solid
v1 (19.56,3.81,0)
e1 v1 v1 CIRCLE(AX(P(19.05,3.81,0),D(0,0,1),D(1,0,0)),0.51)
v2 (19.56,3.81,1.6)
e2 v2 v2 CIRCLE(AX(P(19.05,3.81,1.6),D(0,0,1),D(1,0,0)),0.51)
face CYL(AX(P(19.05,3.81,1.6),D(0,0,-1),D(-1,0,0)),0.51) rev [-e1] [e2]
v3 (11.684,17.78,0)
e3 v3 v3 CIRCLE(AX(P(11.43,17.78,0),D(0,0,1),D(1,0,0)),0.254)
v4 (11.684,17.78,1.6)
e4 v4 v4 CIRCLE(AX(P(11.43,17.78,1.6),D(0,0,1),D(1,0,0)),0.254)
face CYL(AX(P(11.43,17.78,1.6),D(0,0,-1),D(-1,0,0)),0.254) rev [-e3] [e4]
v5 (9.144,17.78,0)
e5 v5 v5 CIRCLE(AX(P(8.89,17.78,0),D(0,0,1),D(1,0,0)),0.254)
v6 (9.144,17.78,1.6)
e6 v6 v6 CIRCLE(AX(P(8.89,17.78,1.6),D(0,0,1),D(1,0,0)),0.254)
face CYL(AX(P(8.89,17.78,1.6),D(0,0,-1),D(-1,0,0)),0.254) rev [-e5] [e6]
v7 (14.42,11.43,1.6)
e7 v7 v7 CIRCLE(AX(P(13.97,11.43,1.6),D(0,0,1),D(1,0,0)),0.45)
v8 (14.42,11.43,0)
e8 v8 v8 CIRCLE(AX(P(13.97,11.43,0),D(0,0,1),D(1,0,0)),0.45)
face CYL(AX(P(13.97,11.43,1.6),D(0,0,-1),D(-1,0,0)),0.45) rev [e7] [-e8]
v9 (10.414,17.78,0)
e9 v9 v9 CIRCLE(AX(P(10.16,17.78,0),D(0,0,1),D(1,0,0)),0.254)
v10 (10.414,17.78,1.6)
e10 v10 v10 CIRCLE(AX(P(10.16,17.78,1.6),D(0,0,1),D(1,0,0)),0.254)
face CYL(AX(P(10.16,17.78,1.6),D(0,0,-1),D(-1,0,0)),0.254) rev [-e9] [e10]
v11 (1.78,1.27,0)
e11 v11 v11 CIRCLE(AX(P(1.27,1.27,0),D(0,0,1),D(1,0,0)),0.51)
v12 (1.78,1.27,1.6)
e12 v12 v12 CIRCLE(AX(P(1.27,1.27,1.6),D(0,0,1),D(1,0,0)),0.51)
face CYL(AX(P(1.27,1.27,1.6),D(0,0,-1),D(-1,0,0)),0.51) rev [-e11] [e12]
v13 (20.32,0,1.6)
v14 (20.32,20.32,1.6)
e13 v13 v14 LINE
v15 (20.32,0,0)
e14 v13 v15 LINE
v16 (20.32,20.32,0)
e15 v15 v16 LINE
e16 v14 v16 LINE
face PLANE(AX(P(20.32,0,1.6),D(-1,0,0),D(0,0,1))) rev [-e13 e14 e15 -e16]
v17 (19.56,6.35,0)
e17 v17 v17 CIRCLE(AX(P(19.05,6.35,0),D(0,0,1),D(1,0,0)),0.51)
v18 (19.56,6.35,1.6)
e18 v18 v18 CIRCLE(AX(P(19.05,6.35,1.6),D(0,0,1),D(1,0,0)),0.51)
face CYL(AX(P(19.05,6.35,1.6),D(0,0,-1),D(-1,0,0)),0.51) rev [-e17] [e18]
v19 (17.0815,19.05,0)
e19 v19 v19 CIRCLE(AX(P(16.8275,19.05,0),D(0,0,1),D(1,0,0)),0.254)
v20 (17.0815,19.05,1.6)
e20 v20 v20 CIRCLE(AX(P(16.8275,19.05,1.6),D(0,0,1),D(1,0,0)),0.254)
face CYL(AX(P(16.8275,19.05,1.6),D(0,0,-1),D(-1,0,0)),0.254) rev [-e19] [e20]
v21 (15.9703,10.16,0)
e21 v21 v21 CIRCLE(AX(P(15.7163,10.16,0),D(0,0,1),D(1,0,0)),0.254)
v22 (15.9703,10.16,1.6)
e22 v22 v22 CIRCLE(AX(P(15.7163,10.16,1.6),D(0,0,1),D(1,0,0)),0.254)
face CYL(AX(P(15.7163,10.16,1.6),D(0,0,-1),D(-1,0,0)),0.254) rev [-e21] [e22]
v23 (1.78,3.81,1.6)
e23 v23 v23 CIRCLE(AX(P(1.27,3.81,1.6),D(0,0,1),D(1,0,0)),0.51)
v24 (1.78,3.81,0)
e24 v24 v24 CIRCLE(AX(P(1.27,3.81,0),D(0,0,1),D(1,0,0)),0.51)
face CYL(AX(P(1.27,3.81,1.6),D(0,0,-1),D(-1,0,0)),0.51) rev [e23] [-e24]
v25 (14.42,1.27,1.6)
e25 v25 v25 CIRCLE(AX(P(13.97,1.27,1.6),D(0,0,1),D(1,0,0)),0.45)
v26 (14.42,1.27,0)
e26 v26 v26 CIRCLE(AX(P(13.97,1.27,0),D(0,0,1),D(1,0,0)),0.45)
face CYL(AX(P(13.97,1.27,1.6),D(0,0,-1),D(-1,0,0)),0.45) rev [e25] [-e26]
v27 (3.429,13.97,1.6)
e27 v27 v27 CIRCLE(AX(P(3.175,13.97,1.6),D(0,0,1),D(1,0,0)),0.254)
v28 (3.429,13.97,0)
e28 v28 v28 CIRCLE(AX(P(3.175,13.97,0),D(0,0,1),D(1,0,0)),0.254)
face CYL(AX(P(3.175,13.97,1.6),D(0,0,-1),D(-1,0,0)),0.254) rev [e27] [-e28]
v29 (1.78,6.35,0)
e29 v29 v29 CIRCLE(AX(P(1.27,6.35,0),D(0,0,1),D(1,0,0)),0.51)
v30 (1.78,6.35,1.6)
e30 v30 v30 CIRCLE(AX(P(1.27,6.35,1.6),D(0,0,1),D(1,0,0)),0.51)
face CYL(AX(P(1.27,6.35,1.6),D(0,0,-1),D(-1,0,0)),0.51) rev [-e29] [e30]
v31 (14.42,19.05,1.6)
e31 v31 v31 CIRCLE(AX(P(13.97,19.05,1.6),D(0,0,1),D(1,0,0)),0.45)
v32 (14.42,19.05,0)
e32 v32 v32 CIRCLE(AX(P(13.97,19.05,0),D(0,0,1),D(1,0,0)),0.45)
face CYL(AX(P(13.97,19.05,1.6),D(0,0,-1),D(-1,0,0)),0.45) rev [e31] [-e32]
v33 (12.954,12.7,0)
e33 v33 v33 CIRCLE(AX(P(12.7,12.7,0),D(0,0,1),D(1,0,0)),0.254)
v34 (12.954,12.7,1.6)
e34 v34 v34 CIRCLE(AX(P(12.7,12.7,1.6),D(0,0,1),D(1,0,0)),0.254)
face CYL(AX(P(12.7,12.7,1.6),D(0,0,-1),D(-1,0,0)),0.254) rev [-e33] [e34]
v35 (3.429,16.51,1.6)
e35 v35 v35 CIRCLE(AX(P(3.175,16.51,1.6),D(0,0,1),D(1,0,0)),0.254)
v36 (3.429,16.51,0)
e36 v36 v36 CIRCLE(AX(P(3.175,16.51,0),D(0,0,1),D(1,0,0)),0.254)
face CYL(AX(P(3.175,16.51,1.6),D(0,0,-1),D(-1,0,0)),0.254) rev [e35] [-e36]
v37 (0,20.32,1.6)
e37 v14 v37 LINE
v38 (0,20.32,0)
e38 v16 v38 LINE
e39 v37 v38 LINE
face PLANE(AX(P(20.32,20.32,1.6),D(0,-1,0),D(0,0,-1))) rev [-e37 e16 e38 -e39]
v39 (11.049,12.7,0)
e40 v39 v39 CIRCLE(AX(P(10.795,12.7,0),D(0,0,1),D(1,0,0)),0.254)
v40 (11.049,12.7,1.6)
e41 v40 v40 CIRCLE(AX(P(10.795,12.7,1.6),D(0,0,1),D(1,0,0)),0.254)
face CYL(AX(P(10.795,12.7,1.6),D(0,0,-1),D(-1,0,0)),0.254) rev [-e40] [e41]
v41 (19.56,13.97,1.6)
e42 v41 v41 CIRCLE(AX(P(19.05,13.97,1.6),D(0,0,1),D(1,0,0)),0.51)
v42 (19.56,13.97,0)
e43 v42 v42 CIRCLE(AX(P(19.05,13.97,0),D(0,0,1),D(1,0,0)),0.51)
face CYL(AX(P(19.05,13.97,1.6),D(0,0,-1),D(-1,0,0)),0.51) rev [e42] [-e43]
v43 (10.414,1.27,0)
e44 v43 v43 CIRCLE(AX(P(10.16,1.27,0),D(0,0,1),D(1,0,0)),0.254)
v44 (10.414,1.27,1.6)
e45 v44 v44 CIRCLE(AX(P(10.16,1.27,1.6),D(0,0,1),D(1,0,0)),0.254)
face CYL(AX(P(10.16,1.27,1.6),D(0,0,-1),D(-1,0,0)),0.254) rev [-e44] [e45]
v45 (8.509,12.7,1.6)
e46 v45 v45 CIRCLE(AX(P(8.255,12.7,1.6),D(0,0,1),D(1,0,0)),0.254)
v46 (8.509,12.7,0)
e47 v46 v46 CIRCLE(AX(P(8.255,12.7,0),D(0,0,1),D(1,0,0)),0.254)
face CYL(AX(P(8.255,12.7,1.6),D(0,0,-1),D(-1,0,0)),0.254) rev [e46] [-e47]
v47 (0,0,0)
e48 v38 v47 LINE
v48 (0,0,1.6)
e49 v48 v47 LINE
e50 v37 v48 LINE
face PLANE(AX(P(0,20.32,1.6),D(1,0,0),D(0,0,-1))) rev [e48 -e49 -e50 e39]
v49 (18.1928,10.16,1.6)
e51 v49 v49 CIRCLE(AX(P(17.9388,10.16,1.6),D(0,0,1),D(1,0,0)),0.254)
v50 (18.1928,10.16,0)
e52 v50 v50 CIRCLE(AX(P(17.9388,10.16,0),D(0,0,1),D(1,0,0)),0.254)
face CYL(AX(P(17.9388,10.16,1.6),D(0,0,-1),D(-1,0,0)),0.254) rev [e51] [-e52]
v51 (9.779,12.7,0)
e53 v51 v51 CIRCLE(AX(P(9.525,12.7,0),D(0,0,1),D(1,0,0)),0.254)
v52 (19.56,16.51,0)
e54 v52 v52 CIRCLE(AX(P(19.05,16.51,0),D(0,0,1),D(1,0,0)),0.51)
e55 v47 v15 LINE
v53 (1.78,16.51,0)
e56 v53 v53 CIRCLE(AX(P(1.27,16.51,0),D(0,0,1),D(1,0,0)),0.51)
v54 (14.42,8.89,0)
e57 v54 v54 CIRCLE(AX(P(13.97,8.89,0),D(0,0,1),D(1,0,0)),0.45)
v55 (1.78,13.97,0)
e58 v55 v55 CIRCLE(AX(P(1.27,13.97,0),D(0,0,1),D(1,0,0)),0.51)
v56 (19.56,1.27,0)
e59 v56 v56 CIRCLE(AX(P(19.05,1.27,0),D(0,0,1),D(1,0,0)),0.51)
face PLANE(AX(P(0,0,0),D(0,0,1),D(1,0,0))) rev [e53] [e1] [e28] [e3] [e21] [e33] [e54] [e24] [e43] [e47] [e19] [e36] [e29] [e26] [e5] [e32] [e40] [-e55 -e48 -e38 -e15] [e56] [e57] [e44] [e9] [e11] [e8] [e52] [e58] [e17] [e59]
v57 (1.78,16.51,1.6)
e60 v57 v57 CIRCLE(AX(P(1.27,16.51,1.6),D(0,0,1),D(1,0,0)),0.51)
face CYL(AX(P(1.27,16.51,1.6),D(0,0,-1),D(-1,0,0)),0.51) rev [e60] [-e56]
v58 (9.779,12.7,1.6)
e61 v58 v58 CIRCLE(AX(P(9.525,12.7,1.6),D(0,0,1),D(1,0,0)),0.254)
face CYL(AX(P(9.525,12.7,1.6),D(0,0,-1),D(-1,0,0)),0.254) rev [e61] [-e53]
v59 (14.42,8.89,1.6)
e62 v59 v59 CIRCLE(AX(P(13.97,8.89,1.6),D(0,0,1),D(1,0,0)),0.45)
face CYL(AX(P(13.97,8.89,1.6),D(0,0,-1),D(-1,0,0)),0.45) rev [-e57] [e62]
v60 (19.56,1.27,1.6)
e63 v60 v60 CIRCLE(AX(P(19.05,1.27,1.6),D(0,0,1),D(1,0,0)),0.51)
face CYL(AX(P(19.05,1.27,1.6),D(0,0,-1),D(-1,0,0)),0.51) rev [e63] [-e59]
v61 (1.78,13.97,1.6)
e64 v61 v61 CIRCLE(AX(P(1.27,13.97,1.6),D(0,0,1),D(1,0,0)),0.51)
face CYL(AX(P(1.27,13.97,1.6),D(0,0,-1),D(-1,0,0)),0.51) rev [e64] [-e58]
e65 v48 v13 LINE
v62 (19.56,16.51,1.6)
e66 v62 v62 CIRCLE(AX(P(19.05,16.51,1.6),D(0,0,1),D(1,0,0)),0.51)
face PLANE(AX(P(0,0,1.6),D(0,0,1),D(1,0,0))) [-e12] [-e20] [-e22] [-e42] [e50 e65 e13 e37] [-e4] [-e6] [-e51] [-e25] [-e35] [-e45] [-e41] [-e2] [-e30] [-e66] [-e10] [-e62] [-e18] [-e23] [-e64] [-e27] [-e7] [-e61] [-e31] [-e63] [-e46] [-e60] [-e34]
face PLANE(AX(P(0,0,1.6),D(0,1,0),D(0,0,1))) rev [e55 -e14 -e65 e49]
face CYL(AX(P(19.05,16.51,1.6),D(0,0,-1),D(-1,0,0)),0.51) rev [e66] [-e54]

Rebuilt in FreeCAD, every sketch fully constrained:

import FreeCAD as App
import Part
import Sketcher

doc = App.newDocument("Part")
body = doc.addObject("PartDesign::Body", "Body")

# Sketch on XY plane
sketch1 = body.newObject("Sketcher::SketchObject", "Sketch")
sketch1.AttachmentSupport = (doc.getObject("XY_Plane"), [""])
sketch1.MapMode = "FlatFace"
sketch1.addGeometry(Part.LineSegment(App.Vector(0, 20.32, 0), App.Vector(0, 0, 0)), False)
sketch1.addGeometry(Part.LineSegment(App.Vector(0, 0, 0), App.Vector(20.32, 0, 0)), False)
sketch1.addGeometry(Part.LineSegment(App.Vector(20.32, 0, 0), App.Vector(20.32, 20.32, 0)), False)
sketch1.addGeometry(Part.LineSegment(App.Vector(20.32, 20.32, 0), App.Vector(0, 20.32, 0)), False)
sketch1.addConstraint(Sketcher.Constraint("Coincident", 0, 2, 1, 1))
sketch1.addConstraint(Sketcher.Constraint("Coincident", 1, 2, 2, 1))
sketch1.addConstraint(Sketcher.Constraint("Coincident", 2, 2, 3, 1))
sketch1.addConstraint(Sketcher.Constraint("Coincident", 3, 2, 0, 1))
sketch1.addConstraint(Sketcher.Constraint("Vertical", 0))
sketch1.addConstraint(Sketcher.Constraint("Horizontal", 1))
sketch1.addConstraint(Sketcher.Constraint("Vertical", 2))
sketch1.addConstraint(Sketcher.Constraint("Horizontal", 3))
sketch1.addConstraint(Sketcher.Constraint("Coincident", 0, 2, -1, 1))
sketch1.addConstraint(Sketcher.Constraint("Equal", 3, 0))
sketch1.addConstraint(Sketcher.Constraint("DistanceX", 1, 1, 1, 2, 20.32))
pad1 = body.newObject("PartDesign::Pad", "Pad")
pad1.Profile = sketch1
pad1.Length = 1.6

# Sketch on XY plane
sketch2 = body.newObject("Sketcher::SketchObject", "Sketch001")
sketch2.AttachmentSupport = (doc.getObject("XY_Plane"), [""])
sketch2.MapMode = "FlatFace"
sketch2.addGeometry(Part.Circle(App.Vector(9.525, 12.7, 0), App.Vector(0, 0, 1), 0.254), False)
sketch2.addGeometry(Part.Circle(App.Vector(11.43, 17.78, 0), App.Vector(0, 0, 1), 0.254), False)
sketch2.addGeometry(Part.Circle(App.Vector(10.16, 17.78, 0), App.Vector(0, 0, 1), 0.254), False)
sketch2.addGeometry(Part.Circle(App.Vector(10.795, 12.7, 0), App.Vector(0, 0, 1), 0.254), False)
sketch2.addGeometry(Part.Circle(App.Vector(3.175, 13.97, 0), App.Vector(0, 0, 1), 0.254), False)
sketch2.addGeometry(Part.Circle(App.Vector(8.89, 17.78, 0), App.Vector(0, 0, 1), 0.254), False)
sketch2.addGeometry(Part.Circle(App.Vector(15.7163, 10.16, 0), App.Vector(0, 0, 1), 0.254), False)
sketch2.addGeometry(Part.Circle(App.Vector(16.8275, 19.05, 0), App.Vector(0, 0, 1), 0.254), False)
sketch2.addGeometry(Part.Circle(App.Vector(8.255, 12.7, 0), App.Vector(0, 0, 1), 0.254), False)
sketch2.addGeometry(Part.Circle(App.Vector(17.9388, 10.16, 0), App.Vector(0, 0, 1), 0.254), False)
sketch2.addGeometry(Part.Circle(App.Vector(12.7, 12.7, 0), App.Vector(0, 0, 1), 0.254), False)
sketch2.addGeometry(Part.Circle(App.Vector(10.16, 1.27, 0), App.Vector(0, 0, 1), 0.254), False)
sketch2.addGeometry(Part.Circle(App.Vector(3.175, 16.51, 0), App.Vector(0, 0, 1), 0.254), False)
sketch2.addConstraint(Sketcher.Constraint("Equal", 0, 1))
sketch2.addConstraint(Sketcher.Constraint("Equal", 1, 2))
sketch2.addConstraint(Sketcher.Constraint("Equal", 2, 3))
sketch2.addConstraint(Sketcher.Constraint("Equal", 3, 4))
sketch2.addConstraint(Sketcher.Constraint("Equal", 4, 5))
sketch2.addConstraint(Sketcher.Constraint("Equal", 5, 6))
sketch2.addConstraint(Sketcher.Constraint("Equal", 6, 7))
sketch2.addConstraint(Sketcher.Constraint("Equal", 7, 8))
sketch2.addConstraint(Sketcher.Constraint("Equal", 8, 9))
sketch2.addConstraint(Sketcher.Constraint("Equal", 9, 10))
sketch2.addConstraint(Sketcher.Constraint("Equal", 10, 11))
sketch2.addConstraint(Sketcher.Constraint("Equal", 11, 12))
sketch2.addConstraint(Sketcher.Constraint("Horizontal", 1, 3, 2, 3))
sketch2.addConstraint(Sketcher.Constraint("Horizontal", 0, 3, 3, 3))
sketch2.addConstraint(Sketcher.Constraint("Horizontal", 2, 3, 5, 3))
sketch2.addConstraint(Sketcher.Constraint("Horizontal", 3, 3, 8, 3))
sketch2.addConstraint(Sketcher.Constraint("Horizontal", 6, 3, 9, 3))
sketch2.addConstraint(Sketcher.Constraint("Horizontal", 8, 3, 10, 3))
sketch2.addConstraint(Sketcher.Constraint("Vertical", 2, 3, 11, 3))
sketch2.addConstraint(Sketcher.Constraint("Vertical", 4, 3, 12, 3))
sketch2.addConstraint(Sketcher.Constraint("Diameter", 0, 0.508))
sketch2.addConstraint(Sketcher.Constraint("DistanceY", -1, 1, 0, 3, 12.7))
sketch2.addConstraint(Sketcher.Constraint("DistanceX", -1, 1, 10, 3, 12.7))
sketch2.addConstraint(Sketcher.Constraint("DistanceX", -1, 1, 1, 3, 11.43))
sketch2.addConstraint(Sketcher.Constraint("DistanceY", -1, 1, 1, 3, 17.78))
sketch2.addConstraint(Sketcher.Constraint("DistanceX", -1, 1, 2, 3, 10.16))
sketch2.addConstraint(Sketcher.Constraint("DistanceY", -1, 1, 4, 3, 13.97))
sketch2.addConstraint(Sketcher.Constraint("DistanceX", -1, 1, 5, 3, 8.89))
sketch2.addConstraint(Sketcher.Constraint("DistanceY", -1, 1, 6, 3, 10.16))
sketch2.addConstraint(Sketcher.Constraint("DistanceY", -1, 1, 7, 3, 19.05))
sketch2.addConstraint(Sketcher.Constraint("DistanceY", -1, 1, 11, 3, 1.27))
sketch2.addConstraint(Sketcher.Constraint("DistanceY", -1, 1, 12, 3, 16.51))
sketch2.addConstraint(Sketcher.Constraint("DistanceX", 0, 3, 3, 3, 1.27))
sketch2.addConstraint(Sketcher.Constraint("DistanceX", 4, 3, 0, 3, 6.35))
sketch2.addConstraint(Sketcher.Constraint("DistanceX", 8, 3, 0, 3, 1.27))
sketch2.addConstraint(Sketcher.Constraint("DistanceX", -1, 1, 0, 3, 9.525))
sketch2.addConstraint(Sketcher.Constraint("DistanceX", -1, 1, 6, 3, 15.7163))
sketch2.addConstraint(Sketcher.Constraint("DistanceX", -1, 1, 7, 3, 16.8275))
sketch2.addConstraint(Sketcher.Constraint("DistanceX", -1, 1, 9, 3, 17.9388))
pocket1 = body.newObject("PartDesign::Pocket", "Pocket")
pocket1.Profile = sketch2
pocket1.Type = "ThroughAll"
pocket1.Reversed = True

# Sketch on XY plane
sketch3 = body.newObject("Sketcher::SketchObject", "Sketch002")
sketch3.AttachmentSupport = (doc.getObject("XY_Plane"), [""])
sketch3.MapMode = "FlatFace"
sketch3.addGeometry(Part.Circle(App.Vector(1.27, 1.27, 0), App.Vector(0, 0, 1), 0.51), False)
sketch3.addGeometry(Part.Circle(App.Vector(1.27, 3.81, 0), App.Vector(0, 0, 1), 0.51), False)
sketch3.addGeometry(Part.Circle(App.Vector(1.27, 6.35, 0), App.Vector(0, 0, 1), 0.51), False)
sketch3.addGeometry(Part.Circle(App.Vector(19.05, 16.51, 0), App.Vector(0, 0, 1), 0.51), False)
sketch3.addGeometry(Part.Circle(App.Vector(19.05, 13.97, 0), App.Vector(0, 0, 1), 0.51), False)
sketch3.addGeometry(Part.Circle(App.Vector(1.27, 16.51, 0), App.Vector(0, 0, 1), 0.51), False)
sketch3.addGeometry(Part.Circle(App.Vector(1.27, 13.97, 0), App.Vector(0, 0, 1), 0.51), False)
sketch3.addGeometry(Part.Circle(App.Vector(19.05, 1.27, 0), App.Vector(0, 0, 1), 0.51), False)
sketch3.addGeometry(Part.Circle(App.Vector(19.05, 3.81, 0), App.Vector(0, 0, 1), 0.51), False)
sketch3.addGeometry(Part.Circle(App.Vector(19.05, 6.35, 0), App.Vector(0, 0, 1), 0.51), False)
sketch3.addGeometry(Part.Circle(App.Vector(13.97, 8.89, 0), App.Vector(0, 0, 1), 0.45), False)
sketch3.addGeometry(Part.Circle(App.Vector(13.97, 1.27, 0), App.Vector(0, 0, 1), 0.45), False)
sketch3.addGeometry(Part.Circle(App.Vector(13.97, 11.43, 0), App.Vector(0, 0, 1), 0.45), False)
sketch3.addGeometry(Part.Circle(App.Vector(13.97, 19.05, 0), App.Vector(0, 0, 1), 0.45), False)
sketch3.addConstraint(Sketcher.Constraint("Equal", 0, 1))
sketch3.addConstraint(Sketcher.Constraint("Equal", 1, 2))
sketch3.addConstraint(Sketcher.Constraint("Equal", 2, 3))
sketch3.addConstraint(Sketcher.Constraint("Equal", 3, 4))
sketch3.addConstraint(Sketcher.Constraint("Equal", 4, 5))
sketch3.addConstraint(Sketcher.Constraint("Equal", 5, 6))
sketch3.addConstraint(Sketcher.Constraint("Equal", 6, 7))
sketch3.addConstraint(Sketcher.Constraint("Equal", 7, 8))
sketch3.addConstraint(Sketcher.Constraint("Equal", 8, 9))
sketch3.addConstraint(Sketcher.Constraint("Equal", 10, 11))
sketch3.addConstraint(Sketcher.Constraint("Equal", 11, 12))
sketch3.addConstraint(Sketcher.Constraint("Equal", 12, 13))
sketch3.addConstraint(Sketcher.Constraint("Horizontal", 3, 3, 5, 3))
sketch3.addConstraint(Sketcher.Constraint("Horizontal", 4, 3, 6, 3))
sketch3.addConstraint(Sketcher.Constraint("Horizontal", 0, 3, 7, 3))
sketch3.addConstraint(Sketcher.Constraint("Horizontal", 1, 3, 8, 3))
sketch3.addConstraint(Sketcher.Constraint("Horizontal", 2, 3, 9, 3))
sketch3.addConstraint(Sketcher.Constraint("Horizontal", 7, 3, 11, 3))
sketch3.addConstraint(Sketcher.Constraint("Vertical", 0, 3, 1, 3))
sketch3.addConstraint(Sketcher.Constraint("Vertical", 1, 3, 2, 3))
sketch3.addConstraint(Sketcher.Constraint("Vertical", 3, 3, 4, 3))
sketch3.addConstraint(Sketcher.Constraint("Vertical", 2, 3, 5, 3))
sketch3.addConstraint(Sketcher.Constraint("Vertical", 5, 3, 6, 3))
sketch3.addConstraint(Sketcher.Constraint("Vertical", 4, 3, 7, 3))
sketch3.addConstraint(Sketcher.Constraint("Vertical", 7, 3, 8, 3))
sketch3.addConstraint(Sketcher.Constraint("Vertical", 8, 3, 9, 3))
sketch3.addConstraint(Sketcher.Constraint("Vertical", 10, 3, 11, 3))
sketch3.addConstraint(Sketcher.Constraint("Vertical", 11, 3, 12, 3))
sketch3.addConstraint(Sketcher.Constraint("Vertical", 12, 3, 13, 3))
sketch3.addConstraint(Sketcher.Constraint("Diameter", 10, 0.9))
sketch3.addConstraint(Sketcher.Constraint("Diameter", 0, 1.02))
sketch3.addConstraint(Sketcher.Constraint("DistanceY", 1, 3, 3, 3, 12.7))
sketch3.addConstraint(Sketcher.Constraint("DistanceY", 0, 3, 4, 3, 12.7))
sketch3.addConstraint(Sketcher.Constraint("DistanceX", 0, 3, 11, 3, 12.7))
sketch3.addConstraint(Sketcher.Constraint("DistanceX", -1, 1, 0, 3, 1.27))
sketch3.addConstraint(Sketcher.Constraint("DistanceY", -1, 1, 0, 3, 1.27))
sketch3.addConstraint(Sketcher.Constraint("DistanceY", -1, 1, 1, 3, 3.81))
sketch3.addConstraint(Sketcher.Constraint("DistanceY", -1, 1, 2, 3, 6.35))
sketch3.addConstraint(Sketcher.Constraint("DistanceX", -1, 1, 3, 3, 19.05))
sketch3.addConstraint(Sketcher.Constraint("DistanceY", -1, 1, 10, 3, 8.89))
sketch3.addConstraint(Sketcher.Constraint("DistanceY", -1, 1, 12, 3, 11.43))
sketch3.addConstraint(Sketcher.Constraint("DistanceY", -1, 1, 13, 3, 19.05))
pocket2 = body.newObject("PartDesign::Pocket", "Pocket001")
pocket2.Profile = sketch3
pocket2.Type = "ThroughAll"
pocket2.Reversed = True

doc.recompute()
